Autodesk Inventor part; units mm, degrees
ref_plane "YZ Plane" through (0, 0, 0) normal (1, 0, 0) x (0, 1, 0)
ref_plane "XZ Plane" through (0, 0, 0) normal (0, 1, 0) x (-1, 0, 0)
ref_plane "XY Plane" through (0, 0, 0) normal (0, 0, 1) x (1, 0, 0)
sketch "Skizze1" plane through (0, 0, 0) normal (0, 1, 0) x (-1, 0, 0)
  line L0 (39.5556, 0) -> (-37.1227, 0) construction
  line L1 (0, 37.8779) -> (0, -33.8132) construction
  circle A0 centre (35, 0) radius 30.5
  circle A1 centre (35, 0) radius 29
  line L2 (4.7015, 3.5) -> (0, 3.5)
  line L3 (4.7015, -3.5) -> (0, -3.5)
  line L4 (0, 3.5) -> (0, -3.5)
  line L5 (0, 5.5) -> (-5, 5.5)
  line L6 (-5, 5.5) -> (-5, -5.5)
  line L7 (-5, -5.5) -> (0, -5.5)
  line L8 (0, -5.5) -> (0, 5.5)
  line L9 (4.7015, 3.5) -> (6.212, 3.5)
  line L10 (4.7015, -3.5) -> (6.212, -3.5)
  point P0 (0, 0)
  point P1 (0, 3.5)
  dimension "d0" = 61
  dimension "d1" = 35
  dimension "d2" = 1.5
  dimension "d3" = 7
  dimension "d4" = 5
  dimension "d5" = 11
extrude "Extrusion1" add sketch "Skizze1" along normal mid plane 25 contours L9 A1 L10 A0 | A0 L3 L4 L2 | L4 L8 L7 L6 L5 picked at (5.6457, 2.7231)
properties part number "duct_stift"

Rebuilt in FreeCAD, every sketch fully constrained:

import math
import FreeCAD as App
import Part
import Sketcher

V = App.Vector

doc = App.newDocument("Part")
body = doc.addObject("PartDesign::Body", "Body")

sketch1 = body.newObject("Sketcher::SketchObject", "Sketch")
sketch1.AttachmentSupport = (doc.getObject("XZ_Plane"), [""])
sketch1.MapMode = "FlatFace"
sketch1.addGeometry([
    Part.LineSegment(V(-6.212, 3.5, 0), V(0, 3.5, 0)),
    Part.LineSegment(V(0, 3.5, 0), V(0, 5.5, 0)),
    Part.LineSegment(V(0, 5.5, 0), V(5, 5.5, 0)),
    Part.LineSegment(V(5, 5.5, 0), V(5, -5.5, 0)),
    Part.LineSegment(V(5, -5.5, 0), V(0, -5.5, 0)),
    Part.LineSegment(V(0, -5.5, 0), V(0, -3.5, 0)),
    Part.LineSegment(V(0, -3.5, 0), V(-6.212, -3.5, 0)),
    Part.ArcOfCircle(Part.Circle(V(-35, 0, 0), V(0, 0, 1), 29), math.radians(-6.931911), math.radians(6.931911)),
], False)
sketch1.addConstraint([
    Sketcher.Constraint("Coincident", 0, 2, 1, 1),
    Sketcher.Constraint("Coincident", 1, 2, 2, 1),
    Sketcher.Constraint("Coincident", 2, 2, 3, 1),
    Sketcher.Constraint("Coincident", 3, 2, 4, 1),
    Sketcher.Constraint("Coincident", 4, 2, 5, 1),
    Sketcher.Constraint("Coincident", 5, 2, 6, 1),
    Sketcher.Constraint("Coincident", 6, 2, 7, 1),
    Sketcher.Constraint("Coincident", 7, 2, 0, 1),
    Sketcher.Constraint("Horizontal", 0),
    Sketcher.Constraint("Vertical", 1),
    Sketcher.Constraint("Horizontal", 2),
    Sketcher.Constraint("Vertical", 3),
    Sketcher.Constraint("Horizontal", 4),
    Sketcher.Constraint("Vertical", 5),
    Sketcher.Constraint("Horizontal", 6),
    Sketcher.Constraint("Symmetric", 1, 2, 4, 2, -1, 1),
    Sketcher.Constraint("Symmetric", 0, 2, 5, 2, -1),
    Sketcher.Constraint("PointOnObject", 7, 3, -1),
    Sketcher.Constraint("DistanceX", 2, 1, 2, 2, 5.0),
    Sketcher.Constraint("DistanceY", 3, 2, 3, 1, 11.0),
    Sketcher.Constraint("DistanceX", 7, 3, -1, 1, 35.0),
    Sketcher.Constraint("Radius", 7, 29.0),
    Sketcher.Constraint("DistanceY", 5, 2, 0, 2, 7.0),
])
pad1 = body.newObject("PartDesign::Pad", "Pad")
pad1.Profile = sketch1
pad1.Length = 25
pad1.Midplane = True

doc.recompute()
